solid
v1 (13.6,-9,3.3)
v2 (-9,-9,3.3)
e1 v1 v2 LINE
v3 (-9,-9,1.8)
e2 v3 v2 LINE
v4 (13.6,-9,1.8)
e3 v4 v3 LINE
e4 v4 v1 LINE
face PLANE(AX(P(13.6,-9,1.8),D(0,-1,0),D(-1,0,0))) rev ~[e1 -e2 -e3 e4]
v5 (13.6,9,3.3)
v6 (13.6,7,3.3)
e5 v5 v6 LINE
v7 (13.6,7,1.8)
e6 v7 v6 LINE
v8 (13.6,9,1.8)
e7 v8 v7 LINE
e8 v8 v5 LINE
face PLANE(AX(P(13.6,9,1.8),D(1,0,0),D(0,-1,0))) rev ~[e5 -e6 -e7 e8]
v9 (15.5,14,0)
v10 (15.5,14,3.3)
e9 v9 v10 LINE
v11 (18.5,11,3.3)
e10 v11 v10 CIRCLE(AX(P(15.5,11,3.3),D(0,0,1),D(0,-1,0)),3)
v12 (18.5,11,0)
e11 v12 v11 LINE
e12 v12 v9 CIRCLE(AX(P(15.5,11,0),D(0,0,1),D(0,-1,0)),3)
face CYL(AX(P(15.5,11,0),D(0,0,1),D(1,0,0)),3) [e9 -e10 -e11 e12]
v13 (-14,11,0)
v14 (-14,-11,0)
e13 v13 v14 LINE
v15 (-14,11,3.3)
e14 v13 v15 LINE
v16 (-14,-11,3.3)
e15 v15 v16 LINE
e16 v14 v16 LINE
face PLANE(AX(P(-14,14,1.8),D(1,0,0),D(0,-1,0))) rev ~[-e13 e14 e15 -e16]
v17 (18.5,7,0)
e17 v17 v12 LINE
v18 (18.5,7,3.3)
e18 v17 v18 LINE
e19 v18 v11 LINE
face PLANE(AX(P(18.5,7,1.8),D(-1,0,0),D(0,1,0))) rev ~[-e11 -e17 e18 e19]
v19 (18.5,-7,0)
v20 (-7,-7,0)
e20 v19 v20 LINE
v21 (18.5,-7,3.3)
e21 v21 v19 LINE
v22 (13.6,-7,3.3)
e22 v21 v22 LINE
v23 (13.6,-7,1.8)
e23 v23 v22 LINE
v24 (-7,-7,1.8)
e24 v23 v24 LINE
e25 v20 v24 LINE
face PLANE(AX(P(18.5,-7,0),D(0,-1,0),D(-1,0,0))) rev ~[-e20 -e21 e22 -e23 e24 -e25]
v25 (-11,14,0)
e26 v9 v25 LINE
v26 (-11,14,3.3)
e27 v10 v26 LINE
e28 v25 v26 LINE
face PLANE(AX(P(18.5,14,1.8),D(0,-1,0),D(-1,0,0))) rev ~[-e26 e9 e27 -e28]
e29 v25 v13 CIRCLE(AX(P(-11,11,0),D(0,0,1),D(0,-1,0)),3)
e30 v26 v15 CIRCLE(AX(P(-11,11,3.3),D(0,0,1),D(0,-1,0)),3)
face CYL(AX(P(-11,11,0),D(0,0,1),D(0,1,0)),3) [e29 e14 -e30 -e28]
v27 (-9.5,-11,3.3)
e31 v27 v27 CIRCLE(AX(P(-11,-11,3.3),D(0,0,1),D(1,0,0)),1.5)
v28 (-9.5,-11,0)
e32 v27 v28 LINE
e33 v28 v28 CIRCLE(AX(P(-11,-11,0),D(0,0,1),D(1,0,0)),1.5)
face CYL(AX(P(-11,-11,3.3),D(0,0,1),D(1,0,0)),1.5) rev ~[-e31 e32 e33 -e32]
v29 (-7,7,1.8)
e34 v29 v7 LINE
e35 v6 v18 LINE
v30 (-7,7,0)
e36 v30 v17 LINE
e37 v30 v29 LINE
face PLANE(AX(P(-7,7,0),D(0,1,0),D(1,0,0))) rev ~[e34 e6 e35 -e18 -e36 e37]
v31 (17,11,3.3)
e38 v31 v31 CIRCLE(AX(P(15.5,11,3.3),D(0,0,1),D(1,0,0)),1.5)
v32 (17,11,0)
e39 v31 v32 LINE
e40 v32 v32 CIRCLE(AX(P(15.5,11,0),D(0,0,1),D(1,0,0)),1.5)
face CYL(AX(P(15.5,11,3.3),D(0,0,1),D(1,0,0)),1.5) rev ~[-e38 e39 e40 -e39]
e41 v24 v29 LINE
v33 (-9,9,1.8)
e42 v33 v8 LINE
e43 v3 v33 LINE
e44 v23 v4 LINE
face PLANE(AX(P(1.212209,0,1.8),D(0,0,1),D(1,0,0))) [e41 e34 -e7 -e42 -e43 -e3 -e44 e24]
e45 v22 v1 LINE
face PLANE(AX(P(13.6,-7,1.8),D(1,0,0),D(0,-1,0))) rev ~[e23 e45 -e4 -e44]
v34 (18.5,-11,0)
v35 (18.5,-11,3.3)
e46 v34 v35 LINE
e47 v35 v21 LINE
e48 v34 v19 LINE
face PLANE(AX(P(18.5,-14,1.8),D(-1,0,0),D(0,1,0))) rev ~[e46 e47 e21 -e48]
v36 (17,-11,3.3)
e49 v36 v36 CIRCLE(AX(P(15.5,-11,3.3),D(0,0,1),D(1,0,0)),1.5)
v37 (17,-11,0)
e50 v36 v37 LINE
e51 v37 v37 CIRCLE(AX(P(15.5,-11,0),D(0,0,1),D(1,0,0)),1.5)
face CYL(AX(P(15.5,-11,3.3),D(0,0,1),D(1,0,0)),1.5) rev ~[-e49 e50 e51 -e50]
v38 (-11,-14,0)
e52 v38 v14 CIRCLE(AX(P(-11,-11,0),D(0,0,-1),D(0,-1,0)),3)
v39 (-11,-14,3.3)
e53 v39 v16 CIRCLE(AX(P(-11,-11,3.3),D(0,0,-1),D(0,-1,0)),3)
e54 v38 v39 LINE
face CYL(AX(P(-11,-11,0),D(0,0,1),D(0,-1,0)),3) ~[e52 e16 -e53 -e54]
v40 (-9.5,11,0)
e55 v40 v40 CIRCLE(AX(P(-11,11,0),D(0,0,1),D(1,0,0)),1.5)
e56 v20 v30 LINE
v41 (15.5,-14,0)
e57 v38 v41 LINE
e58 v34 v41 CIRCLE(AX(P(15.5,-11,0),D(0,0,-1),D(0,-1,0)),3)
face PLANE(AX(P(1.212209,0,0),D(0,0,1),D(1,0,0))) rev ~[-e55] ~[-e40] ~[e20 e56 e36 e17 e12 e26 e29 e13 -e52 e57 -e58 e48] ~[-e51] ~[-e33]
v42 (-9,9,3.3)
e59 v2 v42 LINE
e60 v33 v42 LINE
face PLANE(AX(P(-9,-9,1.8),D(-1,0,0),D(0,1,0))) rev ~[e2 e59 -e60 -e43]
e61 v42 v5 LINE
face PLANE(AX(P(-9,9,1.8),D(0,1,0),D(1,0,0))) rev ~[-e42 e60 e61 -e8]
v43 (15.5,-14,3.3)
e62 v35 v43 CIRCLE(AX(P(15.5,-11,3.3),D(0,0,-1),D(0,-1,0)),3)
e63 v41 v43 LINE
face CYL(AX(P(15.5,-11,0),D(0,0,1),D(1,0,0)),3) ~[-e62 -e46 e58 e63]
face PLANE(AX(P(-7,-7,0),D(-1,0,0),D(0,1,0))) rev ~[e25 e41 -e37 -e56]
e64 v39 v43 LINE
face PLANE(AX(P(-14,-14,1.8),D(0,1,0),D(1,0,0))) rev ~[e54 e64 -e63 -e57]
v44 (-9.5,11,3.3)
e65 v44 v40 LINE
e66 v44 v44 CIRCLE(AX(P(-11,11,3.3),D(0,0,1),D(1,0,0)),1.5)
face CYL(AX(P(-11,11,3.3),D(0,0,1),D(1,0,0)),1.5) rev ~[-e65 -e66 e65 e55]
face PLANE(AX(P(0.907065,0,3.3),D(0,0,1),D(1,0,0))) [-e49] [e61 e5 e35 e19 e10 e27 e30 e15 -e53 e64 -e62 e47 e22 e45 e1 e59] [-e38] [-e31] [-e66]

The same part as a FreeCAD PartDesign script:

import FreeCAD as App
import Part
import Sketcher

V = App.Vector
Q = App.Units.Quantity


def edges_at(feature, points):
    """Names of the edges that pass closest to the given points."""
    edges = feature.Shape.Edges
    near = lambda p: min(range(len(edges)), key=lambda i: edges[i].distToShape(Part.Vertex(*p))[0])
    return sorted({f"Edge{near(p) + 1}" for p in points})

doc = App.newDocument("Part")
body = doc.addObject("PartDesign::Body", "Body")

# Sketch on XY plane
sketch1 = body.newObject("Sketcher::SketchObject", "Sketch")
sketch1.AttachmentSupport = (doc.getObject("XY_Plane"), [""])
sketch1.MapMode = "FlatFace"
sketch1.addGeometry(Part.LineSegment(V(18, 14, 0), V(-14, 14, 0)), False)
sketch1.addGeometry(Part.LineSegment(V(-14, 14, 0), V(-14, -14, 0)), False)
sketch1.addGeometry(Part.LineSegment(V(-14, -14, 0), V(18, -14, 0)), False)
sketch1.addGeometry(Part.LineSegment(V(18, -14, 0), V(18, -7, 0)), False)
sketch1.addGeometry(Part.LineSegment(V(18, -7, 0), V(-7, -7, 0)), False)
sketch1.addGeometry(Part.LineSegment(V(-7, -7, 0), V(-7, 7, 0)), False)
sketch1.addGeometry(Part.LineSegment(V(-7, 7, 0), V(18, 7, 0)), False)
sketch1.addGeometry(Part.LineSegment(V(18, 7, 0), V(18, 14, 0)), False)
sketch1.addConstraint(Sketcher.Constraint("Coincident", 0, 2, 1, 1))
sketch1.addConstraint(Sketcher.Constraint("Coincident", 1, 2, 2, 1))
sketch1.addConstraint(Sketcher.Constraint("Coincident", 2, 2, 3, 1))
sketch1.addConstraint(Sketcher.Constraint("Coincident", 3, 2, 4, 1))
sketch1.addConstraint(Sketcher.Constraint("Coincident", 4, 2, 5, 1))
sketch1.addConstraint(Sketcher.Constraint("Coincident", 5, 2, 6, 1))
sketch1.addConstraint(Sketcher.Constraint("Coincident", 6, 2, 7, 1))
sketch1.addConstraint(Sketcher.Constraint("Coincident", 7, 2, 0, 1))
sketch1.addConstraint(Sketcher.Constraint("Horizontal", 0))
sketch1.addConstraint(Sketcher.Constraint("Vertical", 1))
sketch1.addConstraint(Sketcher.Constraint("Horizontal", 2))
sketch1.addConstraint(Sketcher.Constraint("Vertical", 3))
sketch1.addConstraint(Sketcher.Constraint("Horizontal", 4))
sketch1.addConstraint(Sketcher.Constraint("Vertical", 5))
sketch1.addConstraint(Sketcher.Constraint("Horizontal", 6))
sketch1.addConstraint(Sketcher.Constraint("Vertical", 7))
sketch1.addConstraint(Sketcher.Constraint("Symmetric", 3, 2, 6, 2, -1))
sketch1.addConstraint(Sketcher.Constraint("Equal", 3, 7))
sketch1.addConstraint(Sketcher.Constraint("DistanceY", 1, 2, 1, 1, Q("28 mm")))
sketch1.addConstraint(Sketcher.Constraint("DistanceY", 3, 1, 3, 2, Q("7 mm")))
sketch1.addConstraint(Sketcher.Constraint("DistanceX", 0, 2, 0, 1, Q("32.5 mm")))
sketch1.addConstraint(Sketcher.Constraint("DistanceX", 4, 2, 4, 1, Q("25.5 mm")))
sketch1.addConstraint(Sketcher.Constraint("DistanceX", 0, 2, -1, 1, Q("14 mm")))
pad1 = body.newObject("PartDesign::Pad", "Pad")
pad1.Profile = sketch1
pad1.Length = 1.8

# Sketch on XY plane
sketch2 = body.newObject("Sketcher::SketchObject", "Sketch001")
sketch2.AttachmentSupport = (doc.getObject("XY_Plane"), [""])
sketch2.MapMode = "FlatFace"
sketch2.AttachmentOffset = App.Placement(V(0, 0, 1.8), App.Rotation())
sketch2.addGeometry(Part.LineSegment(V(-9, -9, 0), V(-9, 9, 0)), False)
sketch2.addGeometry(Part.LineSegment(V(-9, 9, 0), V(13.6, 9, 0)), False)
sketch2.addGeometry(Part.LineSegment(V(13.6, 9, 0), V(13.6, 7, 0)), False)
sketch2.addGeometry(Part.LineSegment(V(13.6, 7, 0), V(18.5, 7, 0)), False)
sketch2.addGeometry(Part.LineSegment(V(18.5, 7, 0), V(18.5, 14, 0)), False)
sketch2.addGeometry(Part.LineSegment(V(18.5, 14, 0), V(-14, 14, 0)), False)
sketch2.addGeometry(Part.LineSegment(V(-14, 14, 0), V(-14, -14, 0)), False)
sketch2.addGeometry(Part.LineSegment(V(-14, -14, 0), V(18.5, -14, 0)), False)
sketch2.addGeometry(Part.LineSegment(V(18.5, -14, 0), V(18.5, -7, 0)), False)
sketch2.addGeometry(Part.LineSegment(V(18.5, -7, 0), V(13.6, -7, 0)), False)
sketch2.addGeometry(Part.LineSegment(V(13.6, -7, 0), V(13.6, -9, 0)), False)
sketch2.addGeometry(Part.LineSegment(V(13.6, -9, 0), V(-9, -9, 0)), False)
sketch2.addConstraint(Sketcher.Constraint("Coincident", 0, 2, 1, 1))
sketch2.addConstraint(Sketcher.Constraint("Coincident", 1, 2, 2, 1))
sketch2.addConstraint(Sketcher.Constraint("Coincident", 2, 2, 3, 1))
sketch2.addConstraint(Sketcher.Constraint("Coincident", 3, 2, 4, 1))
sketch2.addConstraint(Sketcher.Constraint("Coincident", 4, 2, 5, 1))
sketch2.addConstraint(Sketcher.Constraint("Coincident", 5, 2, 6, 1))
sketch2.addConstraint(Sketcher.Constraint("Coincident", 6, 2, 7, 1))
sketch2.addConstraint(Sketcher.Constraint("Coincident", 7, 2, 8, 1))
sketch2.addConstraint(Sketcher.Constraint("Coincident", 8, 2, 9, 1))
sketch2.addConstraint(Sketcher.Constraint("Coincident", 9, 2, 10, 1))
sketch2.addConstraint(Sketcher.Constraint("Coincident", 10, 2, 11, 1))
sketch2.addConstraint(Sketcher.Constraint("Coincident", 11, 2, 0, 1))
sketch2.addConstraint(Sketcher.Constraint("Vertical", 0))
sketch2.addConstraint(Sketcher.Constraint("Horizontal", 1))
sketch2.addConstraint(Sketcher.Constraint("Vertical", 2))
sketch2.addConstraint(Sketcher.Constraint("Horizontal", 3))
sketch2.addConstraint(Sketcher.Constraint("Vertical", 4))
sketch2.addConstraint(Sketcher.Constraint("Horizontal", 5))
sketch2.addConstraint(Sketcher.Constraint("Vertical", 6))
sketch2.addConstraint(Sketcher.Constraint("Horizontal", 7))
sketch2.addConstraint(Sketcher.Constraint("Vertical", 8))
sketch2.addConstraint(Sketcher.Constraint("Horizontal", 9))
sketch2.addConstraint(Sketcher.Constraint("Vertical", 10))
sketch2.addConstraint(Sketcher.Constraint("Horizontal", 11))
sketch2.addConstraint(Sketcher.Constraint("Symmetric", 4, 2, 7, 2, -1))
sketch2.addConstraint(Sketcher.Constraint("Symmetric", 2, 2, 9, 2, -1))
sketch2.addConstraint(Sketcher.Constraint("Equal", 2, 10))
sketch2.addConstraint(Sketcher.Constraint("DistanceY", 0, 1, 0, 2, Q("18 mm")))
sketch2.addConstraint(Sketcher.Constraint("DistanceY", 2, 2, 2, 1, Q("2 mm")))
sketch2.addConstraint(Sketcher.Constraint("DistanceY", 4, 1, 4, 2, Q("7 mm")))
sketch2.addConstraint(Sketcher.Constraint("DistanceX", 1, 1, 1, 2, Q("22.6 mm")))
sketch2.addConstraint(Sketcher.Constraint("DistanceX", 3, 1, 3, 2, Q("4.9 mm")))
sketch2.addConstraint(Sketcher.Constraint("DistanceX", 5, 2, 5, 1, Q("32.5 mm")))
sketch2.addConstraint(Sketcher.Constraint("DistanceX", 0, 2, -1, 1, Q("9 mm")))
pad2 = body.newObject("PartDesign::Pad", "Pad001")
pad2.Profile = sketch2
pad2.Length = 1.5

# Sketch on XY plane
sketch3 = body.newObject("Sketcher::SketchObject", "Sketch002")
sketch3.AttachmentSupport = (doc.getObject("XY_Plane"), [""])
sketch3.MapMode = "FlatFace"
sketch3.AttachmentOffset = App.Placement(V(0, 0, 3.3), App.Rotation())
sketch3.addGeometry(Part.Circle(V(-11, 11, 0), V(0, 0, 1), 1.5), False)
sketch3.addGeometry(Part.Circle(V(15.5, 11, 0), V(0, 0, 1), 1.5), False)
sketch3.addGeometry(Part.Circle(V(15.5, -11, 0), V(0, 0, 1), 1.5), False)
sketch3.addGeometry(Part.Circle(V(-11, -11, 0), V(0, 0, 1), 1.5), False)
sketch3.addConstraint(Sketcher.Constraint("Equal", 0, 1))
sketch3.addConstraint(Sketcher.Constraint("Equal", 1, 2))
sketch3.addConstraint(Sketcher.Constraint("Equal", 2, 3))
sketch3.addConstraint(Sketcher.Constraint("Symmetric", 1, 3, 2, 3, -1))
sketch3.addConstraint(Sketcher.Constraint("Symmetric", 0, 3, 3, 3, -1))
sketch3.addConstraint(Sketcher.Constraint("Horizontal", 0, 3, 1, 3))
sketch3.addConstraint(Sketcher.Constraint("Diameter", 0, Q("3 mm")))
sketch3.addConstraint(Sketcher.Constraint("DistanceX", 0, 3, -1, 1, Q("11 mm")))
sketch3.addConstraint(Sketcher.Constraint("DistanceY", -1, 1, 0, 3, Q("11 mm")))
sketch3.addConstraint(Sketcher.Constraint("DistanceX", -1, 1, 1, 3, Q("15.5 mm")))
pocket1 = body.newObject("PartDesign::Pocket", "Pocket")
pocket1.Profile = sketch3
pocket1.Type = "ThroughAll"
doc.recompute()

fillet = body.newObject("PartDesign::Fillet", "Fillet")
fillet.Base = (pocket1, edges_at(pocket1, [
    (-14, -14, 1.65),
    (18.5, -14, 1.65),
    (18.5, 14, 1.65),
    (-14, 14, 1.65),
]))
fillet.Radius = 3

doc.recompute()
